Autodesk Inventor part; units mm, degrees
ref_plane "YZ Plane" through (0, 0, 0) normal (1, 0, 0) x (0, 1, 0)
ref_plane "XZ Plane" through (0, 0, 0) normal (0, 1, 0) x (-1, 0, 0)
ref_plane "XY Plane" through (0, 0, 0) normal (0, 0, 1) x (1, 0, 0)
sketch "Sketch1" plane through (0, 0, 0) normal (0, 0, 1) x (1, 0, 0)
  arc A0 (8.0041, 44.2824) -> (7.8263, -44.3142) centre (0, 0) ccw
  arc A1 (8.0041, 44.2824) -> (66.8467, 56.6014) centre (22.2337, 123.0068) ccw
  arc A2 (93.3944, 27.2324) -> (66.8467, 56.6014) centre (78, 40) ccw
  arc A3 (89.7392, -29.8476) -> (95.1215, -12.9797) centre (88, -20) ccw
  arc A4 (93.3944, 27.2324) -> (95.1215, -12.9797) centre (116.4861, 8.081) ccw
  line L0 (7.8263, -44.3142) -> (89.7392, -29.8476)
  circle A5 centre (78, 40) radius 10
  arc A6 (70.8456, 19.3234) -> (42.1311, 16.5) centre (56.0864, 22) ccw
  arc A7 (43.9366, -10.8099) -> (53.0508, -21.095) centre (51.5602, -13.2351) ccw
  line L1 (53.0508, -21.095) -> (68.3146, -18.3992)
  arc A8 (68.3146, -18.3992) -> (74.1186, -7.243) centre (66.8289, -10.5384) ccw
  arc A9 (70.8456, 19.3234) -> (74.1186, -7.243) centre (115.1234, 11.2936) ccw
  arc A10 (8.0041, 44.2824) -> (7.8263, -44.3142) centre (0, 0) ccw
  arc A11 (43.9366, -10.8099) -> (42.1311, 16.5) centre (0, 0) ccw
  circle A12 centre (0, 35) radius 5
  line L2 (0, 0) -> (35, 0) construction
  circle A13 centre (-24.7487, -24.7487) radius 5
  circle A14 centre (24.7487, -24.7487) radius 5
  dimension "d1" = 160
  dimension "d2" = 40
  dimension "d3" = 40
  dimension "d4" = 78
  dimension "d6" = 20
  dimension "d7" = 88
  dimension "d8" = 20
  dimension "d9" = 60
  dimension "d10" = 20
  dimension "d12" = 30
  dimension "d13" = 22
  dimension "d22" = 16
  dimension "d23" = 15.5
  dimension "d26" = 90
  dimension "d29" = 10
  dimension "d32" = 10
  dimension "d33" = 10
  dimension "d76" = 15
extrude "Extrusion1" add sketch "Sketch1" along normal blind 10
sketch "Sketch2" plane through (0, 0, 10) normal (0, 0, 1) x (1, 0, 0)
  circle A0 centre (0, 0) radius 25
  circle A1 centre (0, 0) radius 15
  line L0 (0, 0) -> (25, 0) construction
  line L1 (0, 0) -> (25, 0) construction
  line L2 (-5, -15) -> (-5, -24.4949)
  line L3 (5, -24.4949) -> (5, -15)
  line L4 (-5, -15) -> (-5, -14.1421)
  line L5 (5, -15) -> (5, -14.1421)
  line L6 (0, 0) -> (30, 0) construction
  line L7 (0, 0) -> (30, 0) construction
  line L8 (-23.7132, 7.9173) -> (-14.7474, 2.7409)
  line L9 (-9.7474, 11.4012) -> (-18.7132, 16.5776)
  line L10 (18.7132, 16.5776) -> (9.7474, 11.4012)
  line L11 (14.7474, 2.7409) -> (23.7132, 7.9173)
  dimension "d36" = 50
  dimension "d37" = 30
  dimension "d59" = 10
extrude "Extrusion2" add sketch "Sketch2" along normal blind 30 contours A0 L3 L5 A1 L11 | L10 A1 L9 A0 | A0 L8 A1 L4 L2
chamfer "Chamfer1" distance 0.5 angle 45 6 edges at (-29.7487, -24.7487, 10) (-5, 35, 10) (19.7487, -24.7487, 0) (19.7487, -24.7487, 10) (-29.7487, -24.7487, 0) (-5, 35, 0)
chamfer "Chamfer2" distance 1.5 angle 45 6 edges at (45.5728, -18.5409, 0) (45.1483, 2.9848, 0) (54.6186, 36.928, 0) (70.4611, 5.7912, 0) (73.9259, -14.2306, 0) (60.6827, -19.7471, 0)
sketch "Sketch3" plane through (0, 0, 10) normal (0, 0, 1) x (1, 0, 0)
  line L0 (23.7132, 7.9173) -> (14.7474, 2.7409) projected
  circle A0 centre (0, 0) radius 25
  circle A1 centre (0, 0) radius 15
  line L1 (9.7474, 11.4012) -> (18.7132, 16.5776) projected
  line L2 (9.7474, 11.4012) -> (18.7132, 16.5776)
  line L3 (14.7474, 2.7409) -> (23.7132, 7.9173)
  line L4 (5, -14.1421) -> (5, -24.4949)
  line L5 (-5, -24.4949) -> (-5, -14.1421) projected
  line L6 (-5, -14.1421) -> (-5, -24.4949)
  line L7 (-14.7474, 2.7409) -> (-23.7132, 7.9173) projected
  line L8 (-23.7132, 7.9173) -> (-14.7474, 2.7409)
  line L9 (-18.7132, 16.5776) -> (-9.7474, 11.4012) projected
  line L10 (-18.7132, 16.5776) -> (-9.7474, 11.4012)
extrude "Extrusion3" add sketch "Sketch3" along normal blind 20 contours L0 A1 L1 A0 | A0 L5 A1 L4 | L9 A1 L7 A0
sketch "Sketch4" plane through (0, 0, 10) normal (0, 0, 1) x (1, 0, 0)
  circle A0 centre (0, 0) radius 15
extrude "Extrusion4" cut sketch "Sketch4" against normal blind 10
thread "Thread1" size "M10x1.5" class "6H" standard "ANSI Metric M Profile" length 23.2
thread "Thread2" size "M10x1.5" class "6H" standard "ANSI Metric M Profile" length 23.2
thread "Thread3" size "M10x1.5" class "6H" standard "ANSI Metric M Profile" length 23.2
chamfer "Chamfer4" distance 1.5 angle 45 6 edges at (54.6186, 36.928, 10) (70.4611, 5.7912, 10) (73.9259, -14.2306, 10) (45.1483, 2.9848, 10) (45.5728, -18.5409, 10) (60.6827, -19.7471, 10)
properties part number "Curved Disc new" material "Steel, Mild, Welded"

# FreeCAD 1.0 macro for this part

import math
import FreeCAD as App
import Part
import Sketcher

V = App.Vector
Q = App.Units.Quantity


def edges_at(feature, points):
    """Names of the edges that pass closest to the given points."""
    edges = feature.Shape.Edges
    near = lambda p: min(range(len(edges)), key=lambda i: edges[i].distToShape(Part.Vertex(*p))[0])
    return sorted({f"Edge{near(p) + 1}" for p in points})

doc = App.newDocument("Part")
params = doc.addObject("Spreadsheet::Sheet", "Params")
for row, (alias, value) in enumerate([
    ("sketch1_diameter", "10 mm"),
    ("sketch1_diameter2", "20 mm"),
    ("sketch1_radius", "80 mm"),
    ("sketch1_radius2", "45 mm"),
    ("sketch1_radius3", "30 mm"),
    ("pad1_length", "10 mm"),
    ("sketch2_radius", "25 mm"),
    ("sketch2_radius2", "15 mm"),
    ("pad2_length", "30 mm"),
    ("chamfer_size", "0.5 mm"),
    ("chamfer2_size", "1.5 mm"),
    ("sketch3_radius", "25 mm"),
    ("sketch3_radius2", "15 mm"),
    ("pad3_length", "20 mm"),
    ("sketch4_diameter", "30 mm"),
    ("pocket1_length", "10 mm"),
    ("chamfer3_size", "1.5 mm"),
], start=1):
    params.set(f"A{row}", alias)
    params.set(f"B{row}", "=" + value)
    params.setAlias(f"B{row}", alias)

body = doc.addObject("PartDesign::Body", "Body")

# Sketch on XY plane
sketch1 = body.newObject("Sketcher::SketchObject", "Sketch")
sketch1.AttachmentSupport = (doc.getObject("XY_Plane"), [""])
sketch1.MapMode = "FlatFace"
sketch1.addGeometry([
    Part.ArcOfCircle(Part.Circle(V(22, 123, 0), V(0, 0, 1), 80), math.radians(-100), math.radians(-56)),  # 0
    Part.ArcOfCircle(Part.Circle(V(0, 0, 0), V(0, 0, 1), 45), math.radians(80), math.radians(280)),  # 1
    Part.LineSegment(V(8, -44, 0), V(90, -30, 0)),  # 2
    Part.ArcOfCircle(Part.Circle(V(88, -20, 0), V(0, 0, 1), 10), math.radians(-80), math.radians(45)),  # 3
    Part.ArcOfCircle(Part.Circle(V(116, 8, 0), V(0, 0, 1), 30), math.radians(140), math.radians(225)),  # 4
    Part.ArcOfCircle(Part.Circle(V(78, 40, 0), V(0, 0, 1), 20), math.radians(-40), math.radians(124)),  # 5
    Part.Circle(V(-25, -25, 0), V(0, 0, 1), 5),  # 6
    Part.Circle(V(25, -25, 0), V(0, 0, 1), 5),  # 7
    Part.Circle(V(0, 35, 0), V(0, 0, 1), 5),  # 8
    Part.ArcOfCircle(Part.Circle(V(56, 22, 0), V(0, 0, 1), 15), math.radians(-10), math.radians(202)),  # 9
    Part.ArcOfCircle(Part.Circle(V(115, 11, 0), V(0, 0, 1), 45), math.radians(170), math.radians(204)),  # 10
    Part.ArcOfCircle(Part.Circle(V(67, -11, 0), V(0, 0, 1), 8), math.radians(-79), math.radians(24)),  # 11
    Part.LineSegment(V(68, -18, 0), V(53, -21, 0)),  # 12
    Part.ArcOfCircle(Part.Circle(V(52, -13, 0), V(0, 0, 1), 8), math.radians(162), math.radians(281)),  # 13
    Part.ArcOfCircle(Part.Circle(V(0, 0, 0), V(0, 0, 1), 45), math.radians(-14), math.radians(21)),  # 14
    Part.Circle(V(78, 40, 0), V(0, 0, 1), 10),  # 15
], False)
sketch1.addConstraint([
    Sketcher.Constraint("Tangent", 0, 1, 1, 1),
    Sketcher.Constraint("Tangent", 1, 2, 2, 1),
    Sketcher.Constraint("Tangent", 2, 2, 3, 1),
    Sketcher.Constraint("Tangent", 3, 2, 4, 2),
    Sketcher.Constraint("Tangent", 4, 1, 5, 1),
    Sketcher.Constraint("Tangent", 5, 2, 0, 2),
    Sketcher.Constraint("Tangent", 9, 1, 10, 1),
    Sketcher.Constraint("Tangent", 10, 2, 11, 2),
    Sketcher.Constraint("Coincident", 11, 1, 12, 1),
    Sketcher.Constraint("Coincident", 12, 2, 13, 2),
    Sketcher.Constraint("Coincident", 13, 1, 14, 1),
    Sketcher.Constraint("Coincident", 14, 2, 9, 2),
    Sketcher.Constraint("Coincident", 1, 3, -1, 1),
    Sketcher.Constraint("Coincident", 14, 3, -1, 1),
    Sketcher.Constraint("Coincident", 15, 3, 5, 3),
    Sketcher.Constraint("Equal", 6, 7),
    Sketcher.Constraint("Equal", 7, 8),
    Sketcher.Constraint("Equal", 1, 10),
    Sketcher.Constraint("Equal", 11, 13),
    Sketcher.Constraint("Equal", 3, 15),
    Sketcher.Constraint("Symmetric", 6, 3, 7, 3, -2),
    Sketcher.Constraint("PointOnObject", 8, 3, -2),
    Sketcher.Constraint("Parallel", 2, 12),
    Sketcher.Constraint("Diameter", 6, 10.0),
    Sketcher.Constraint("Diameter", 15, 20.0),
    Sketcher.Constraint("Radius", 0, 80.0),
    Sketcher.Constraint("Radius", 1, 45.0),
    Sketcher.Constraint("Radius", 4, 30.0),
    Sketcher.Constraint("Radius", 5, 20.0),
    Sketcher.Constraint("Radius", 9, 15.0),
    Sketcher.Constraint("Radius", 11, 8.0),
    Sketcher.Constraint("DistanceX", -1, 1, 3, 3, 88.0),
    Sketcher.Constraint("DistanceY", 3, 3, -1, 1, 20.0),
    Sketcher.Constraint("DistanceX", -1, 1, 5, 3, 78.0),
    Sketcher.Constraint("DistanceY", -1, 1, 5, 3, 40.0),
    Sketcher.Constraint("DistanceY", -1, 1, 9, 3, 22.0),
    Sketcher.Constraint("Distance", 12, 15.5),
    Sketcher.Constraint("DistanceY", -1, 1, 8, 3, 35.0),
    Sketcher.Constraint("DistanceY", -1, 1, 14, 2, 16.5),
    Sketcher.Constraint("Radius", 14, 45.2469),
    Sketcher.Constraint("DistanceY", 13, 1, -1, 1, 10.81),
    Sketcher.Constraint("DistanceY", 12, 2, 13, 3, 7.86),
    Sketcher.Constraint("DistanceX", -1, 1, 11, 3, 66.829),
    Sketcher.Constraint("DistanceY", 13, 3, -1, 1, 13.235),
    Sketcher.Constraint("DistanceX", 6, 3, 1, 2, 32.575),
    Sketcher.Constraint("DistanceY", 6, 3, -1, 1, 24.7487),
])
sketch1.setExpression("Constraints[23]", "Params.sketch1_diameter")
sketch1.setExpression("Constraints[24]", "Params.sketch1_diameter2")
sketch1.setExpression("Constraints[25]", "Params.sketch1_radius")
sketch1.setExpression("Constraints[26]", "Params.sketch1_radius2")
sketch1.setExpression("Constraints[27]", "Params.sketch1_radius3")
pad1 = body.newObject("PartDesign::Pad", "Pad")
pad1.Profile = sketch1
pad1.setExpression("Length", "Params.pad1_length")

# Sketch on XY plane
sketch2 = body.newObject("Sketcher::SketchObject", "Sketch001")
sketch2.AttachmentSupport = (doc.getObject("XY_Plane"), [""])
sketch2.MapMode = "FlatFace"
sketch2.AttachmentOffset = App.Placement(V(0, 0, 10), App.Rotation())
sketch2.addGeometry([
    Part.ArcOfCircle(Part.Circle(V(0, 0, 0), V(0, 0, 1), 25), math.radians(-78), math.radians(18)),  # 0
    Part.LineSegment(V(24, 8, 0), V(15, 3, 0)),  # 1
    Part.ArcOfCircle(Part.Circle(V(0, 0, 0), V(0, 0, 1), 15), math.radians(-71), math.radians(11)),  # 2
    Part.LineSegment(V(5, -14, 0), V(5, -24, 0)),  # 3
    Part.LineSegment(V(10, 11, 0), V(19, 17, 0)),  # 4
    Part.ArcOfCircle(Part.Circle(V(0, 0, 0), V(0, 0, 1), 25), math.radians(42), math.radians(138)),  # 5
    Part.LineSegment(V(-19, 17, 0), V(-10, 11, 0)),  # 6
    Part.ArcOfCircle(Part.Circle(V(0, 0, 0), V(0, 0, 1), 15), math.radians(49), math.radians(131)),  # 7
    Part.ArcOfCircle(Part.Circle(V(0, 0, 0), V(0, 0, 1), 25), math.radians(162), math.radians(258)),  # 8
    Part.LineSegment(V(-5, -24, 0), V(-5, -14, 0)),  # 9
    Part.ArcOfCircle(Part.Circle(V(0, 0, 0), V(0, 0, 1), 15), math.radians(169), math.radians(251)),  # 10
    Part.LineSegment(V(-15, 3, 0), V(-24, 8, 0)),  # 11
], False)
sketch2.addConstraint([
    Sketcher.Constraint("Coincident", 0, 2, 1, 1),
    Sketcher.Constraint("Coincident", 1, 2, 2, 2),
    Sketcher.Constraint("Coincident", 2, 1, 3, 1),
    Sketcher.Constraint("Coincident", 3, 2, 0, 1),
    Sketcher.Constraint("Coincident", 4, 2, 5, 1),
    Sketcher.Constraint("Coincident", 5, 2, 6, 1),
    Sketcher.Constraint("Coincident", 6, 2, 7, 2),
    Sketcher.Constraint("Coincident", 7, 1, 4, 1),
    Sketcher.Constraint("Coincident", 8, 2, 9, 1),
    Sketcher.Constraint("Coincident", 9, 2, 10, 2),
    Sketcher.Constraint("Coincident", 10, 1, 11, 1),
    Sketcher.Constraint("Coincident", 11, 2, 8, 1),
    Sketcher.Constraint("Vertical", 3),
    Sketcher.Constraint("Vertical", 9),
    Sketcher.Constraint("Coincident", 0, 3, -1, 1),
    Sketcher.Constraint("Coincident", 2, 3, -1, 1),
    Sketcher.Constraint("Coincident", 5, 3, -1, 1),
    Sketcher.Constraint("Coincident", 7, 3, -1, 1),
    Sketcher.Constraint("Coincident", 8, 3, -1, 1),
    Sketcher.Constraint("Coincident", 10, 3, -1, 1),
    Sketcher.Constraint("Equal", 0, 5),
    Sketcher.Constraint("Equal", 2, 7),
    Sketcher.Constraint("Equal", 5, 8),
    Sketcher.Constraint("Equal", 7, 10),
    Sketcher.Constraint("Parallel", 1, 4),
    Sketcher.Constraint("Parallel", 6, 11),
    Sketcher.Constraint("Horizontal", 4, 2, 5, 2),
    Sketcher.Constraint("Horizontal", 6, 2, 7, 1),
    Sketcher.Constraint("Horizontal", 3, 2, 8, 2),
    Sketcher.Constraint("Horizontal", 1, 2, 10, 1),
    Sketcher.Constraint("Equal", 1, 4),
    Sketcher.Constraint("Radius", 0, 25.0),
    Sketcher.Constraint("Radius", 2, 15.0),
    Sketcher.Constraint("Angle", 4, Q("30 deg")),
    Sketcher.Constraint("DistanceX", 8, 2, 3, 2, 10.0),
    Sketcher.Constraint("DistanceX", 4, 2, 0, 2, 5.0),
])
sketch2.setExpression("Constraints[31]", "Params.sketch2_radius")
sketch2.setExpression("Constraints[32]", "Params.sketch2_radius2")
pad2 = body.newObject("PartDesign::Pad", "Pad001")
pad2.Profile = sketch2
pad2.setExpression("Length", "Params.pad2_length")
doc.recompute()

chamfer = body.newObject("PartDesign::Chamfer", "Chamfer")
chamfer.Base = (pad2, edges_at(pad2, [
    (-29.749, -24.749, 10),
    (-5, 35, 10),
    (19.749, -24.749, 0),
    (19.749, -24.749, 10),
    (-29.749, -24.749, 0),
    (-5, 35, 0),
]))
chamfer.setExpression("Size", "Params.chamfer_size")
doc.recompute()

chamfer2 = body.newObject("PartDesign::Chamfer", "Chamfer001")
chamfer2.Base = (chamfer, edges_at(chamfer, [
    (45.573, -18.541, 0),
    (45.148, 2.985, 0),
    (54.619, 36.928, 0),
    (70.461, 5.791, 0),
    (73.926, -14.231, 0),
    (60.683, -19.747, 0),
]))
chamfer2.setExpression("Size", "Params.chamfer2_size")

# Sketch on XY plane
sketch3 = body.newObject("Sketcher::SketchObject", "Sketch002")
sketch3.AttachmentSupport = (doc.getObject("XY_Plane"), [""])
sketch3.MapMode = "FlatFace"
sketch3.AttachmentOffset = App.Placement(V(0, 0, 10), App.Rotation())
sketch3.addGeometry([
    Part.LineSegment(V(15, 3, 0), V(24, 8, 0)),  # 0
    Part.ArcOfCircle(Part.Circle(V(0, 0, 0), V(0, 0, 1), 25), math.radians(18), math.radians(42)),  # 1
    Part.LineSegment(V(19, 17, 0), V(10, 11, 0)),  # 2
    Part.ArcOfCircle(Part.Circle(V(0, 0, 0), V(0, 0, 1), 15), math.radians(11), math.radians(49)),  # 3
    Part.ArcOfCircle(Part.Circle(V(0, 0, 0), V(0, 0, 1), 25), math.radians(-102), math.radians(-78)),  # 4
    Part.LineSegment(V(5, -24, 0), V(5, -14, 0)),  # 5
    Part.ArcOfCircle(Part.Circle(V(0, 0, 0), V(0, 0, 1), 15), math.radians(-109), math.radians(-71)),  # 6
    Part.LineSegment(V(-5, -14, 0), V(-5, -24, 0)),  # 7
    Part.LineSegment(V(-10, 11, 0), V(-19, 17, 0)),  # 8
    Part.ArcOfCircle(Part.Circle(V(0, 0, 0), V(0, 0, 1), 25), math.radians(138), math.radians(162)),  # 9
    Part.LineSegment(V(-24, 8, 0), V(-15, 3, 0)),  # 10
    Part.ArcOfCircle(Part.Circle(V(0, 0, 0), V(0, 0, 1), 15), math.radians(131), math.radians(169)),  # 11
], False)
sketch3.addConstraint([
    Sketcher.Constraint("Coincident", 0, 2, 1, 1),
    Sketcher.Constraint("Coincident", 1, 2, 2, 1),
    Sketcher.Constraint("Coincident", 2, 2, 3, 2),
    Sketcher.Constraint("Coincident", 3, 1, 0, 1),
    Sketcher.Constraint("Coincident", 4, 2, 5, 1),
    Sketcher.Constraint("Coincident", 5, 2, 6, 2),
    Sketcher.Constraint("Coincident", 6, 1, 7, 1),
    Sketcher.Constraint("Coincident", 7, 2, 4, 1),
    Sketcher.Constraint("Coincident", 8, 2, 9, 1),
    Sketcher.Constraint("Coincident", 9, 2, 10, 1),
    Sketcher.Constraint("Coincident", 10, 2, 11, 2),
    Sketcher.Constraint("Coincident", 11, 1, 8, 1),
    Sketcher.Constraint("Vertical", 5),
    Sketcher.Constraint("Vertical", 7),
    Sketcher.Constraint("Coincident", 1, 3, -1, 1),
    Sketcher.Constraint("Coincident", 3, 3, -1, 1),
    Sketcher.Constraint("Coincident", 4, 3, -1, 1),
    Sketcher.Constraint("Coincident", 6, 3, -1, 1),
    Sketcher.Constraint("Coincident", 9, 3, -1, 1),
    Sketcher.Constraint("Coincident", 11, 3, -1, 1),
    Sketcher.Constraint("Equal", 1, 4),
    Sketcher.Constraint("Equal", 3, 6),
    Sketcher.Constraint("Equal", 4, 9),
    Sketcher.Constraint("Equal", 6, 11),
    Sketcher.Constraint("Parallel", 0, 2),
    Sketcher.Constraint("Parallel", 8, 10),
    Sketcher.Constraint("Horizontal", 5, 2, 6, 1),
    Sketcher.Constraint("Horizontal", 1, 2, 8, 2),
    Sketcher.Constraint("Horizontal", 0, 2, 9, 2),
    Sketcher.Constraint("Horizontal", 3, 1, 10, 2),
    Sketcher.Constraint("Equal", 0, 2),
    Sketcher.Constraint("Radius", 1, 25.0),
    Sketcher.Constraint("Radius", 3, 15.0),
    Sketcher.Constraint("Angle", 0, Q("30 deg")),
    Sketcher.Constraint("DistanceX", -1, 1, 4, 2, 5.0),
    Sketcher.Constraint("DistanceX", 1, 2, 0, 2, 5.0),
])
sketch3.setExpression("Constraints[31]", "Params.sketch3_radius")
sketch3.setExpression("Constraints[32]", "Params.sketch3_radius2")
pad3 = body.newObject("PartDesign::Pad", "Pad002")
pad3.Profile = sketch3
pad3.setExpression("Length", "Params.pad3_length")

# Sketch on XY plane
sketch4 = body.newObject("Sketcher::SketchObject", "Sketch003")
sketch4.AttachmentSupport = (doc.getObject("XY_Plane"), [""])
sketch4.MapMode = "FlatFace"
sketch4.AttachmentOffset = App.Placement(V(0, 0, 10), App.Rotation())
sketch4.addGeometry(Part.Circle(V(0, 0, 0), V(0, 0, 1), 15), False)
sketch4.addConstraint([
    Sketcher.Constraint("Coincident", 0, 3, -1, 1),
    Sketcher.Constraint("Diameter", 0, 30.0),
])
sketch4.setExpression("Constraints[1]", "Params.sketch4_diameter")
pocket1 = body.newObject("PartDesign::Pocket", "Pocket")
pocket1.Profile = sketch4
pocket1.setExpression("Length", "Params.pocket1_length")
doc.recompute()

chamfer3 = body.newObject("PartDesign::Chamfer", "Chamfer002")
chamfer3.Base = (pocket1, edges_at(pocket1, [
    (54.619, 36.928, 10),
    (70.461, 5.791, 10),
    (73.926, -14.231, 10),
    (45.148, 2.985, 10),
    (45.573, -18.541, 10),
    (60.683, -19.747, 10),
]))
chamfer3.setExpression("Size", "Params.chamfer3_size")

doc.recompute()
